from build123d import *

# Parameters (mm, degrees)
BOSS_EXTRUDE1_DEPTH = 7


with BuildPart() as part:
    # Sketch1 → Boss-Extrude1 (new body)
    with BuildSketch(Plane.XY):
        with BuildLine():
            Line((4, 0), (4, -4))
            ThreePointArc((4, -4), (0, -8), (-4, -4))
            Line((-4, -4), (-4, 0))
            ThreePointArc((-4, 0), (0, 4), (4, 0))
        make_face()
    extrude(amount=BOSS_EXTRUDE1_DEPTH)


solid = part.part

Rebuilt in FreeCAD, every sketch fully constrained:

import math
import FreeCAD as App
import Part
import Sketcher

V = App.Vector

doc = App.newDocument("Part")
params = doc.addObject("Spreadsheet::Sheet", "Params")
for row, (alias, value) in enumerate([
    ("sketch1_radius", "4 mm"),
    ("sketch1_height", "4 mm"),
    ("pad1_length", "7 mm"),
], start=1):
    params.set(f"A{row}", alias)
    params.set(f"B{row}", "=" + value)
    params.setAlias(f"B{row}", alias)

body = doc.addObject("PartDesign::Body", "Body")

# Sketch on XY plane
sketch1 = body.newObject("Sketcher::SketchObject", "Sketch")
sketch1.AttachmentSupport = (doc.getObject("XY_Plane"), [""])
sketch1.MapMode = "FlatFace"
sketch1.addGeometry([
    Part.LineSegment(V(4, -4, 0), V(4, 0, 0)),
    Part.ArcOfCircle(Part.Circle(V(0, 0, 0), V(0, 0, 1), 4), math.radians(0), math.radians(180)),
    Part.LineSegment(V(-4, 0, 0), V(-4, -4, 0)),
    Part.ArcOfCircle(Part.Circle(V(0, -4, 0), V(0, 0, 1), 4), math.radians(180), math.radians(360)),
], False)
sketch1.addConstraint([
    Sketcher.Constraint("Tangent", 0, 2, 1, 1),
    Sketcher.Constraint("Tangent", 1, 2, 2, 1),
    Sketcher.Constraint("Tangent", 2, 2, 3, 1),
    Sketcher.Constraint("Tangent", 3, 2, 0, 1),
    Sketcher.Constraint("Vertical", 0),
    Sketcher.Constraint("Vertical", 2),
    Sketcher.Constraint("Coincident", 1, 3, -1, 1),
    Sketcher.Constraint("Radius", 1, 4.0),
    Sketcher.Constraint("DistanceY", 0, 1, 0, 2, 4.0),
])
sketch1.setExpression("Constraints[7]", "Params.sketch1_radius")
sketch1.setExpression("Constraints[8]", "Params.sketch1_height")
pad1 = body.newObject("PartDesign::Pad", "Pad")
pad1.Profile = sketch1
pad1.setExpression("Length", "Params.pad1_length")

doc.recompute()
